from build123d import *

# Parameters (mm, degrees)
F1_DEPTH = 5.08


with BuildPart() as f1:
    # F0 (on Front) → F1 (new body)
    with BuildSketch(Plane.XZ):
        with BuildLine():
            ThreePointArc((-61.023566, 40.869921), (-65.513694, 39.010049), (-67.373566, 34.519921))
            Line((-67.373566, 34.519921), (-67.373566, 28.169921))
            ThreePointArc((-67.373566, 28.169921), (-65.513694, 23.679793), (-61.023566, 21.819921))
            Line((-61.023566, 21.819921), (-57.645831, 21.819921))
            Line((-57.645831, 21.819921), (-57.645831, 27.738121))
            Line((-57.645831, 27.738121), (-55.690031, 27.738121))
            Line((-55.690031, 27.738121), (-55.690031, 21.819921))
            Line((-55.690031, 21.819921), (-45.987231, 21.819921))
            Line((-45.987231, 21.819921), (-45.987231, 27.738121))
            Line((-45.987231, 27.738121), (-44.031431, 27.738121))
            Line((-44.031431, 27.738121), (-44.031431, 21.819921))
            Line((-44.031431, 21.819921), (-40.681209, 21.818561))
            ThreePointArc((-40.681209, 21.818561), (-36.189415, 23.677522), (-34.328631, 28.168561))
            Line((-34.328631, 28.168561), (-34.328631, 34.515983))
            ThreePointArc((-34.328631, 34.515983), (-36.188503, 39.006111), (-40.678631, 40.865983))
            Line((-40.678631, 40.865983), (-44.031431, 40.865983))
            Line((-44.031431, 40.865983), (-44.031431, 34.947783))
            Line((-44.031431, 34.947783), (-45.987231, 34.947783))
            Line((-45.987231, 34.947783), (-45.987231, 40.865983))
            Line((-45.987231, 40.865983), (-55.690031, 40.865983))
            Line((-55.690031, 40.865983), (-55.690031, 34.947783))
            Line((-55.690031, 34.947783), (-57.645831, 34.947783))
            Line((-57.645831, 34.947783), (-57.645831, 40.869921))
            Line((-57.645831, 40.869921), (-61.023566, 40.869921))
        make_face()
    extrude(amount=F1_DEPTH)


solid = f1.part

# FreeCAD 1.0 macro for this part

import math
import FreeCAD as App
import Part
import Sketcher
from FreeCAD import Vector
Q = App.Units.Quantity

doc = App.newDocument("Part")
body = doc.addObject("PartDesign::Body", "Body")

# Sketch on XZ plane
sketch1 = body.newObject("Sketcher::SketchObject", "Sketch")
sketch1.AttachmentSupport = (doc.getObject("XZ_Plane"), [""])
sketch1.MapMode = "FlatFace"
sketch1.addGeometry([
    Part.ArcOfCircle(Part.Circle(Vector(-61, 34.5, 0), Vector(0, 0, 1), 6.4), math.radians(90), math.radians(180)),  # 0
    Part.LineSegment(Vector(-67.4, 34.5, 0), Vector(-67.4, 28.2, 0)),  # 1
    Part.ArcOfCircle(Part.Circle(Vector(-61, 28.2, 0), Vector(0, 0, 1), 6.4), math.radians(-180), math.radians(-90)),  # 2
    Part.LineSegment(Vector(-61, 21.8, 0), Vector(-57.6, 21.8, 0)),  # 3
    Part.LineSegment(Vector(-57.6, 21.8, 0), Vector(-57.6, 27.7, 0)),  # 4
    Part.LineSegment(Vector(-57.6, 27.7, 0), Vector(-55.7, 27.7, 0)),  # 5
    Part.LineSegment(Vector(-55.7, 27.7, 0), Vector(-55.7, 21.8, 0)),  # 6
    Part.LineSegment(Vector(-55.7, 21.8, 0), Vector(-46, 21.8, 0)),  # 7
    Part.LineSegment(Vector(-46, 21.8, 0), Vector(-46, 27.7, 0)),  # 8
    Part.LineSegment(Vector(-46, 27.7, 0), Vector(-44, 27.7, 0)),  # 9
    Part.LineSegment(Vector(-44, 27.7, 0), Vector(-44, 21.8, 0)),  # 10
    Part.LineSegment(Vector(-44, 21.8, 0), Vector(-40.7, 21.8, 0)),  # 11
    Part.ArcOfCircle(Part.Circle(Vector(-40.7, 28.2, 0), Vector(0, 0, 1), 6.4), math.radians(-90), math.radians(0)),  # 12
    Part.LineSegment(Vector(-34.3, 28.2, 0), Vector(-34.3, 34.5, 0)),  # 13
    Part.ArcOfCircle(Part.Circle(Vector(-40.7, 34.5, 0), Vector(0, 0, 1), 6.4), math.radians(0), math.radians(90)),  # 14
    Part.LineSegment(Vector(-40.7, 40.9, 0), Vector(-44, 40.9, 0)),  # 15
    Part.LineSegment(Vector(-44, 40.9, 0), Vector(-44, 34.9, 0)),  # 16
    Part.LineSegment(Vector(-44, 34.9, 0), Vector(-46, 34.9, 0)),  # 17
    Part.LineSegment(Vector(-46, 34.9, 0), Vector(-46, 40.9, 0)),  # 18
    Part.LineSegment(Vector(-46, 40.9, 0), Vector(-55.7, 40.9, 0)),  # 19
    Part.LineSegment(Vector(-55.7, 40.9, 0), Vector(-55.7, 34.9, 0)),  # 20
    Part.LineSegment(Vector(-55.7, 34.9, 0), Vector(-57.6, 34.9, 0)),  # 21
    Part.LineSegment(Vector(-57.6, 34.9, 0), Vector(-57.6, 40.9, 0)),  # 22
    Part.LineSegment(Vector(-57.6, 40.9, 0), Vector(-61, 40.9, 0)),  # 23
], False)
sketch1.addConstraint([
    Sketcher.Constraint("Tangent", 0, 2, 1, 1),
    Sketcher.Constraint("Tangent", 1, 2, 2, 1),
    Sketcher.Constraint("Tangent", 2, 2, 3, 1),
    Sketcher.Constraint("Coincident", 3, 2, 4, 1),
    Sketcher.Constraint("Coincident", 4, 2, 5, 1),
    Sketcher.Constraint("Coincident", 5, 2, 6, 1),
    Sketcher.Constraint("Coincident", 6, 2, 7, 1),
    Sketcher.Constraint("Coincident", 7, 2, 8, 1),
    Sketcher.Constraint("Coincident", 8, 2, 9, 1),
    Sketcher.Constraint("Coincident", 9, 2, 10, 1),
    Sketcher.Constraint("Coincident", 10, 2, 11, 1),
    Sketcher.Constraint("Tangent", 11, 2, 12, 1),
    Sketcher.Constraint("Tangent", 12, 2, 13, 1),
    Sketcher.Constraint("Tangent", 13, 2, 14, 1),
    Sketcher.Constraint("Tangent", 14, 2, 15, 1),
    Sketcher.Constraint("Coincident", 15, 2, 16, 1),
    Sketcher.Constraint("Coincident", 16, 2, 17, 1),
    Sketcher.Constraint("Coincident", 17, 2, 18, 1),
    Sketcher.Constraint("Coincident", 18, 2, 19, 1),
    Sketcher.Constraint("Coincident", 19, 2, 20, 1),
    Sketcher.Constraint("Coincident", 20, 2, 21, 1),
    Sketcher.Constraint("Coincident", 21, 2, 22, 1),
    Sketcher.Constraint("Coincident", 22, 2, 23, 1),
    Sketcher.Constraint("Tangent", 23, 2, 0, 1),
    Sketcher.Constraint("Vertical", 1),
    Sketcher.Constraint("Horizontal", 3),
    Sketcher.Constraint("Vertical", 4),
    Sketcher.Constraint("Horizontal", 5),
    Sketcher.Constraint("Vertical", 6),
    Sketcher.Constraint("Horizontal", 7),
    Sketcher.Constraint("Vertical", 8),
    Sketcher.Constraint("Horizontal", 9),
    Sketcher.Constraint("Vertical", 10),
    Sketcher.Constraint("Vertical", 13),
    Sketcher.Constraint("Horizontal", 15),
    Sketcher.Constraint("Vertical", 16),
    Sketcher.Constraint("Horizontal", 17),
    Sketcher.Constraint("Vertical", 18),
    Sketcher.Constraint("Horizontal", 19),
    Sketcher.Constraint("Vertical", 20),
    Sketcher.Constraint("Horizontal", 21),
    Sketcher.Constraint("Vertical", 22),
    Sketcher.Constraint("Horizontal", 23),
    Sketcher.Constraint("Equal", 0, 2),
    Sketcher.Constraint("Equal", 2, 14),
    Sketcher.Constraint("Horizontal", 3, 2, 6, 2),
    Sketcher.Constraint("Horizontal", 5, 2, 8, 2),
    Sketcher.Constraint("Horizontal", 7, 2, 10, 2),
    Sketcher.Constraint("Horizontal", 15, 2, 18, 2),
    Sketcher.Constraint("Horizontal", 17, 2, 20, 2),
    Sketcher.Constraint("Vertical", 10, 2, 15, 2),
    Sketcher.Constraint("Vertical", 8, 2, 17, 2),
    Sketcher.Constraint("Vertical", 6, 2, 19, 2),
    Sketcher.Constraint("Vertical", 4, 2, 21, 2),
    Sketcher.Constraint("Equal", 5, 9),
    Sketcher.Constraint("Equal", 10, 16),
    Sketcher.Constraint("Radius", 0, Q("0.25 in")),
    Sketcher.Constraint("Radius", 12, Q("0.2500001 in")),
    Sketcher.Constraint("DistanceY", 1, 2, 1, 1, Q("0.25 in")),
    Sketcher.Constraint("DistanceX", 5, 1, 5, 2, Q("0.077 in")),
    Sketcher.Constraint("DistanceX", 7, 1, 7, 2, Q("0.382 in")),
    Sketcher.Constraint("DistanceX", 15, 2, 15, 1, Q("0.132 in")),
    Sketcher.Constraint("DistanceY", 4, 1, 4, 2, Q("0.233 in")),
    Sketcher.Constraint("DistanceY", 13, 1, 13, 2, Q("6.347422 mm")),
    Sketcher.Constraint("DistanceX", 3, 1, 3, 2, Q("3.377735 mm")),
    Sketcher.Constraint("DistanceY", 22, 1, 22, 2, Q("5.922138 mm")),
    Sketcher.Constraint("DistanceY", -1, 1, 0, 3, Q("34.519921 mm")),
    Sketcher.Constraint("DistanceX", 14, 3, -1, 1, Q("40.678631 mm")),
])
pad1 = body.newObject("PartDesign::Pad", "Pad")
pad1.Profile = sketch1
pad1.Length = Q("0.2 in")

doc.recompute()
